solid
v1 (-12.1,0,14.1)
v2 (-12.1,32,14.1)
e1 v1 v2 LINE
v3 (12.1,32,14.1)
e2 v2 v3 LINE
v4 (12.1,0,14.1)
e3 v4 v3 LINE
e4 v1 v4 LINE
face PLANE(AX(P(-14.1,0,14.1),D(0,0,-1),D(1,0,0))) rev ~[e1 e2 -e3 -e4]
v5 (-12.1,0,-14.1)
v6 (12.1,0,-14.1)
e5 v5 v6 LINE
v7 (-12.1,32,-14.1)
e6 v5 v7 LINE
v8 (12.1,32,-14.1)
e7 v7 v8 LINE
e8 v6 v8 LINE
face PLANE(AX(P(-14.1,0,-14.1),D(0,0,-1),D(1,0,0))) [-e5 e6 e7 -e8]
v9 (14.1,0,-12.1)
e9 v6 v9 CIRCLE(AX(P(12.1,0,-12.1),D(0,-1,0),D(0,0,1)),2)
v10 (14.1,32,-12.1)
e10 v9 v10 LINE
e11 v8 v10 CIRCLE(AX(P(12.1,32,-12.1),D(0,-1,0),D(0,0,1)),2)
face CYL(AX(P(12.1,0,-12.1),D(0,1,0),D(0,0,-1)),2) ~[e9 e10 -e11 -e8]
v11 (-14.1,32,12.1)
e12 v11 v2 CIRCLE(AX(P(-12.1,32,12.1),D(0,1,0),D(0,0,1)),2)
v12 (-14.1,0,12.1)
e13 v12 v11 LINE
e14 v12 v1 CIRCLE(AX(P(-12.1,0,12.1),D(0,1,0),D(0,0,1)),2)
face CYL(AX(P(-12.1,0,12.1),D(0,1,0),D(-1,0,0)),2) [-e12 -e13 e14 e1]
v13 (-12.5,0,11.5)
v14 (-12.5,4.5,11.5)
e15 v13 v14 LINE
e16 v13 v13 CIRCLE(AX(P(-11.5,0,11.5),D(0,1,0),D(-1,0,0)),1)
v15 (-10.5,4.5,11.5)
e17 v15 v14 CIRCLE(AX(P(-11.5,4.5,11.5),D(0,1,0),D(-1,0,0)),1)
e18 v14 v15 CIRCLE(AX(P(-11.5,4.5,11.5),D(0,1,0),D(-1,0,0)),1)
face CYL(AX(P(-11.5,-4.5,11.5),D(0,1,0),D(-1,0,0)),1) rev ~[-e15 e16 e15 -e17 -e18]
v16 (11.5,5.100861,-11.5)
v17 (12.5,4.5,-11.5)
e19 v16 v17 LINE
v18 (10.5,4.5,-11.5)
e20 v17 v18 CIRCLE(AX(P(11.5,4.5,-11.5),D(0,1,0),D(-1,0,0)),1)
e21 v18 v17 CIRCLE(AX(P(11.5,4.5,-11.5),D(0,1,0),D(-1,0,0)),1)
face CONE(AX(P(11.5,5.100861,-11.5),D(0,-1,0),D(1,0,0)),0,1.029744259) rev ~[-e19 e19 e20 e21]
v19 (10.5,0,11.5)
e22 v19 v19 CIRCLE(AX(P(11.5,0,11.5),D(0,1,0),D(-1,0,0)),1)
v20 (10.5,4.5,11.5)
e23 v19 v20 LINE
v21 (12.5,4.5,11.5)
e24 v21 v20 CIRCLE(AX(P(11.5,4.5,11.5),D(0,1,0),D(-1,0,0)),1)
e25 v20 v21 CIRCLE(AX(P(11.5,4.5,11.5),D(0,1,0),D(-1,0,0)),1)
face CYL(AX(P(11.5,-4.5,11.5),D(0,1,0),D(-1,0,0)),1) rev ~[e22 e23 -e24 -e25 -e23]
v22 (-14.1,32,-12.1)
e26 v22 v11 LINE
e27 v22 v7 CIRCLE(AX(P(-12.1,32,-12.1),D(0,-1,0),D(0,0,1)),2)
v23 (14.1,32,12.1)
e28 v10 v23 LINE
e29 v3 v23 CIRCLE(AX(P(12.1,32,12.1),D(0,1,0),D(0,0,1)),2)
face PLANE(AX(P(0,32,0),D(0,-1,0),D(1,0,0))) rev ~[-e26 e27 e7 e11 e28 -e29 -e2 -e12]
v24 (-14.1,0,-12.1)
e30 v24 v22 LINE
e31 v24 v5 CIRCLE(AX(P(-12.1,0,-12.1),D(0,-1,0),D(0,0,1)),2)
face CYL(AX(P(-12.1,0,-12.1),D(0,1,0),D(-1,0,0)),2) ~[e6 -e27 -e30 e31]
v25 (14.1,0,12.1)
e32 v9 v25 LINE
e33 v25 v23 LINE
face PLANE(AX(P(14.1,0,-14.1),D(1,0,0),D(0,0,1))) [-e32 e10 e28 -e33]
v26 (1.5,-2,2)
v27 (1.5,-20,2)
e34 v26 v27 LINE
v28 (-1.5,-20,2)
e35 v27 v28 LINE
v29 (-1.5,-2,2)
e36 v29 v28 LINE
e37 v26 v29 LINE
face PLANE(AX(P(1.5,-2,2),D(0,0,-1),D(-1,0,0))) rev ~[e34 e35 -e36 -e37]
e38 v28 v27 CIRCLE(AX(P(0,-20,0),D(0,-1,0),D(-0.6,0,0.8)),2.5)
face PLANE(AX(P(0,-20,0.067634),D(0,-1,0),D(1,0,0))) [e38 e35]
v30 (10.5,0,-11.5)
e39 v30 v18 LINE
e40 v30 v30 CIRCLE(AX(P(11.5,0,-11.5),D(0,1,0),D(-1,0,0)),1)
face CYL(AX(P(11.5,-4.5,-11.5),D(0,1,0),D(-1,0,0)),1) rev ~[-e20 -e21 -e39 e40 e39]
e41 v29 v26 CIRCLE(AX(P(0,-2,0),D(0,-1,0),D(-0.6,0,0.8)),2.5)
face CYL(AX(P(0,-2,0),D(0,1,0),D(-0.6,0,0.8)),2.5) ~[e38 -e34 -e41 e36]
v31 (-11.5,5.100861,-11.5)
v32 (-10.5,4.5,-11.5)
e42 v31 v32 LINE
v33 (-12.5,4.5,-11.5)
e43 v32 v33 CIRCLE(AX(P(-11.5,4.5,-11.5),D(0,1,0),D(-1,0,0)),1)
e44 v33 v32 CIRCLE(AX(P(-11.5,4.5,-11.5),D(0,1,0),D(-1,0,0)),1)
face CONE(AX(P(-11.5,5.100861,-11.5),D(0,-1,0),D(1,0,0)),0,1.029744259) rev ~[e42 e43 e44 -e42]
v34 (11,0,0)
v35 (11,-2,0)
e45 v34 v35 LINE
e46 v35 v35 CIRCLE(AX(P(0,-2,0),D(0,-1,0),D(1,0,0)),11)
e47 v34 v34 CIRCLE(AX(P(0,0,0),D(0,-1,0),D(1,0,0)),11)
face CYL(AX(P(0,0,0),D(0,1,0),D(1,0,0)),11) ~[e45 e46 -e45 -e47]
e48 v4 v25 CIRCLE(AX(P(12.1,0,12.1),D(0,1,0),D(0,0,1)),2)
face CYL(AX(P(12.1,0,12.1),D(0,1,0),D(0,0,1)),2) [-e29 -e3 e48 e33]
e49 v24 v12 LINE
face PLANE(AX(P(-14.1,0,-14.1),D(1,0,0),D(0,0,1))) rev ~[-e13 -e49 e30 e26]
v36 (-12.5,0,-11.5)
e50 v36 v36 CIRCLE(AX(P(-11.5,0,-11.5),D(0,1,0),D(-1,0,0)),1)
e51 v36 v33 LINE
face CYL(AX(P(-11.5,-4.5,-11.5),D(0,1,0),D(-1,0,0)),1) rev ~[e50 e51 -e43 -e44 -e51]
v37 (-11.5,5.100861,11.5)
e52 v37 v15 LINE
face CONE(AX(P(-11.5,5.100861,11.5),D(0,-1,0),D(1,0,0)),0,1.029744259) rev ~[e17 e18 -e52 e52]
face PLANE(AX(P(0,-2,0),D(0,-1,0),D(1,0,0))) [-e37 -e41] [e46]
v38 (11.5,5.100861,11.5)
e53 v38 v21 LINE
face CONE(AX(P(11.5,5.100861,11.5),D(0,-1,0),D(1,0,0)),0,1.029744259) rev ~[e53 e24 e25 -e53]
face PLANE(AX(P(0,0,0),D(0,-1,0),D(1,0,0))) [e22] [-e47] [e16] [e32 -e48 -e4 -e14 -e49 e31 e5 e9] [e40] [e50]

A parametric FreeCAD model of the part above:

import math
import FreeCAD as App
import Part
import Sketcher
from FreeCAD import Vector
Q = App.Units.Quantity


def edges_at(feature, points):
    """Names of the edges that pass closest to the given points."""
    edges = feature.Shape.Edges
    near = lambda p: min(range(len(edges)), key=lambda i: edges[i].distToShape(Part.Vertex(*p))[0])
    return sorted({f"Edge{near(p) + 1}" for p in points})

doc = App.newDocument("Part")
body = doc.addObject("PartDesign::Body", "Body")

# Sketch on XZ plane
sketch1 = doc.addObject("Sketcher::SketchObject", "Sketch")
body.addObject(sketch1)
sketch1.AttachmentSupport = (doc.XZ_Plane, [""])
sketch1.MapMode = "FlatFace"
sketch1.addGeometry([
    Part.LineSegment(Vector(-14, 14, 0), Vector(-14, -14, 0)),
    Part.LineSegment(Vector(-14, -14, 0), Vector(14, -14, 0)),
    Part.LineSegment(Vector(14, -14, 0), Vector(14, 14, 0)),
    Part.LineSegment(Vector(14, 14, 0), Vector(-14, 14, 0)),
], False)
sketch1.addConstraint([
    Sketcher.Constraint("Coincident", 0, 2, 1, 1),
    Sketcher.Constraint("Coincident", 1, 2, 2, 1),
    Sketcher.Constraint("Coincident", 2, 2, 3, 1),
    Sketcher.Constraint("Coincident", 3, 2, 0, 1),
    Sketcher.Constraint("Vertical", 0),
    Sketcher.Constraint("Horizontal", 1),
    Sketcher.Constraint("Vertical", 2),
    Sketcher.Constraint("Horizontal", 3),
    Sketcher.Constraint("Symmetric", 0, 2, 2, 2, -1, 1),
    Sketcher.Constraint("Equal", 3, 0),
    Sketcher.Constraint("DistanceX", 1, 1, 1, 2, Q("28.2 mm")),
])
pad1 = doc.addObject("PartDesign::Pad", "Pad")
body.addObject(pad1)
pad1.Profile = sketch1
pad1.Length = 32
pad1.Reversed = True

# Sketch on XZ plane
sketch2 = doc.addObject("Sketcher::SketchObject", "Sketch001")
body.addObject(sketch2)
sketch2.AttachmentSupport = (doc.XZ_Plane, [""])
sketch2.MapMode = "FlatFace"
sketch2.addGeometry(Part.Circle(Vector(0, 0, 0), Vector(0, 0, 1), 11), False)
sketch2.addConstraint([
    Sketcher.Constraint("Coincident", 0, 3, -1, 1),
    Sketcher.Constraint("Diameter", 0, Q("22 mm")),
])
pad2 = doc.addObject("PartDesign::Pad", "Pad001")
body.addObject(pad2)
pad2.Profile = sketch2
pad2.Length = 2

# Sketch on XZ plane
sketch3 = doc.addObject("Sketcher::SketchObject", "Sketch002")
body.addObject(sketch3)
sketch3.AttachmentSupport = (doc.XZ_Plane, [""])
sketch3.MapMode = "FlatFace"
sketch3.AttachmentOffset = App.Placement(Vector(0, 0, 2), App.Rotation())
sketch3.addGeometry([
    Part.LineSegment(Vector(1.5, 2, 0), Vector(-1.5, 2, 0)),
    Part.ArcOfCircle(Part.Circle(Vector(0, 0, 0), Vector(0, 0, 1), 2.5), math.radians(127), math.radians(413)),
], False)
sketch3.addConstraint([
    Sketcher.Constraint("Coincident", 0, 1, 1, 2),
    Sketcher.Constraint("Coincident", 1, 1, 0, 2),
    Sketcher.Constraint("Horizontal", 0),
    Sketcher.Constraint("Coincident", 1, 3, -1, 1),
    Sketcher.Constraint("Radius", 1, Q("2.5 mm")),
    Sketcher.Constraint("DistanceX", 0, 2, 0, 1, Q("3 mm")),
])
pad3 = doc.addObject("PartDesign::Pad", "Pad002")
body.addObject(pad3)
pad3.Profile = sketch3
pad3.Length = 18

# Sketch on XZ plane
sketch4 = doc.addObject("Sketcher::SketchObject", "Sketch003")
body.addObject(sketch4)
sketch4.AttachmentSupport = (doc.XZ_Plane, [""])
sketch4.MapMode = "FlatFace"
sketch4.addGeometry([
    Part.Circle(Vector(-11.5, 11.5, 0), Vector(0, 0, 1), 1),
    Part.Circle(Vector(11.5, 11.5, 0), Vector(0, 0, 1), 1),
    Part.Circle(Vector(11.5, -11.5, 0), Vector(0, 0, 1), 1),
    Part.Circle(Vector(-11.5, -11.5, 0), Vector(0, 0, 1), 1),
], False)
sketch4.addConstraint([
    Sketcher.Constraint("Equal", 0, 1),
    Sketcher.Constraint("Equal", 1, 2),
    Sketcher.Constraint("Equal", 2, 3),
    Sketcher.Constraint("Symmetric", 0, 3, 2, 3, -1, 1),
    Sketcher.Constraint("Symmetric", 1, 3, 3, 3, -1, 1),
    Sketcher.Constraint("Symmetric", 0, 3, 1, 3, -2),
    Sketcher.Constraint("Diameter", 0, Q("2 mm")),
    Sketcher.Constraint("DistanceX", 0, 3, 1, 3, Q("23 mm")),
    Sketcher.Constraint("DistanceY", 2, 3, 1, 3, Q("23 mm")),
])
doc.recompute()
hole = doc.addObject("PartDesign::Hole", "Hole")
body.addObject(hole)
hole.Profile = sketch4
hole.ThreadType = "None"
hole.Diameter = 2
hole.DepthType = "Dimension"
hole.Depth = 4.5
hole.DrillPoint = "Angled"
hole.DrillPointAngle = 118
doc.recompute()

fillet = doc.addObject("PartDesign::Fillet", "Fillet")
body.addObject(fillet)
fillet.Base = (hole, edges_at(hole, [
    (14.1, 16, 14.1),
    (14.1, 16, -14.1),
    (-14.1, 16, 14.1),
    (-14.1, 16, -14.1),
]))
fillet.Radius = 2

doc.recompute()
